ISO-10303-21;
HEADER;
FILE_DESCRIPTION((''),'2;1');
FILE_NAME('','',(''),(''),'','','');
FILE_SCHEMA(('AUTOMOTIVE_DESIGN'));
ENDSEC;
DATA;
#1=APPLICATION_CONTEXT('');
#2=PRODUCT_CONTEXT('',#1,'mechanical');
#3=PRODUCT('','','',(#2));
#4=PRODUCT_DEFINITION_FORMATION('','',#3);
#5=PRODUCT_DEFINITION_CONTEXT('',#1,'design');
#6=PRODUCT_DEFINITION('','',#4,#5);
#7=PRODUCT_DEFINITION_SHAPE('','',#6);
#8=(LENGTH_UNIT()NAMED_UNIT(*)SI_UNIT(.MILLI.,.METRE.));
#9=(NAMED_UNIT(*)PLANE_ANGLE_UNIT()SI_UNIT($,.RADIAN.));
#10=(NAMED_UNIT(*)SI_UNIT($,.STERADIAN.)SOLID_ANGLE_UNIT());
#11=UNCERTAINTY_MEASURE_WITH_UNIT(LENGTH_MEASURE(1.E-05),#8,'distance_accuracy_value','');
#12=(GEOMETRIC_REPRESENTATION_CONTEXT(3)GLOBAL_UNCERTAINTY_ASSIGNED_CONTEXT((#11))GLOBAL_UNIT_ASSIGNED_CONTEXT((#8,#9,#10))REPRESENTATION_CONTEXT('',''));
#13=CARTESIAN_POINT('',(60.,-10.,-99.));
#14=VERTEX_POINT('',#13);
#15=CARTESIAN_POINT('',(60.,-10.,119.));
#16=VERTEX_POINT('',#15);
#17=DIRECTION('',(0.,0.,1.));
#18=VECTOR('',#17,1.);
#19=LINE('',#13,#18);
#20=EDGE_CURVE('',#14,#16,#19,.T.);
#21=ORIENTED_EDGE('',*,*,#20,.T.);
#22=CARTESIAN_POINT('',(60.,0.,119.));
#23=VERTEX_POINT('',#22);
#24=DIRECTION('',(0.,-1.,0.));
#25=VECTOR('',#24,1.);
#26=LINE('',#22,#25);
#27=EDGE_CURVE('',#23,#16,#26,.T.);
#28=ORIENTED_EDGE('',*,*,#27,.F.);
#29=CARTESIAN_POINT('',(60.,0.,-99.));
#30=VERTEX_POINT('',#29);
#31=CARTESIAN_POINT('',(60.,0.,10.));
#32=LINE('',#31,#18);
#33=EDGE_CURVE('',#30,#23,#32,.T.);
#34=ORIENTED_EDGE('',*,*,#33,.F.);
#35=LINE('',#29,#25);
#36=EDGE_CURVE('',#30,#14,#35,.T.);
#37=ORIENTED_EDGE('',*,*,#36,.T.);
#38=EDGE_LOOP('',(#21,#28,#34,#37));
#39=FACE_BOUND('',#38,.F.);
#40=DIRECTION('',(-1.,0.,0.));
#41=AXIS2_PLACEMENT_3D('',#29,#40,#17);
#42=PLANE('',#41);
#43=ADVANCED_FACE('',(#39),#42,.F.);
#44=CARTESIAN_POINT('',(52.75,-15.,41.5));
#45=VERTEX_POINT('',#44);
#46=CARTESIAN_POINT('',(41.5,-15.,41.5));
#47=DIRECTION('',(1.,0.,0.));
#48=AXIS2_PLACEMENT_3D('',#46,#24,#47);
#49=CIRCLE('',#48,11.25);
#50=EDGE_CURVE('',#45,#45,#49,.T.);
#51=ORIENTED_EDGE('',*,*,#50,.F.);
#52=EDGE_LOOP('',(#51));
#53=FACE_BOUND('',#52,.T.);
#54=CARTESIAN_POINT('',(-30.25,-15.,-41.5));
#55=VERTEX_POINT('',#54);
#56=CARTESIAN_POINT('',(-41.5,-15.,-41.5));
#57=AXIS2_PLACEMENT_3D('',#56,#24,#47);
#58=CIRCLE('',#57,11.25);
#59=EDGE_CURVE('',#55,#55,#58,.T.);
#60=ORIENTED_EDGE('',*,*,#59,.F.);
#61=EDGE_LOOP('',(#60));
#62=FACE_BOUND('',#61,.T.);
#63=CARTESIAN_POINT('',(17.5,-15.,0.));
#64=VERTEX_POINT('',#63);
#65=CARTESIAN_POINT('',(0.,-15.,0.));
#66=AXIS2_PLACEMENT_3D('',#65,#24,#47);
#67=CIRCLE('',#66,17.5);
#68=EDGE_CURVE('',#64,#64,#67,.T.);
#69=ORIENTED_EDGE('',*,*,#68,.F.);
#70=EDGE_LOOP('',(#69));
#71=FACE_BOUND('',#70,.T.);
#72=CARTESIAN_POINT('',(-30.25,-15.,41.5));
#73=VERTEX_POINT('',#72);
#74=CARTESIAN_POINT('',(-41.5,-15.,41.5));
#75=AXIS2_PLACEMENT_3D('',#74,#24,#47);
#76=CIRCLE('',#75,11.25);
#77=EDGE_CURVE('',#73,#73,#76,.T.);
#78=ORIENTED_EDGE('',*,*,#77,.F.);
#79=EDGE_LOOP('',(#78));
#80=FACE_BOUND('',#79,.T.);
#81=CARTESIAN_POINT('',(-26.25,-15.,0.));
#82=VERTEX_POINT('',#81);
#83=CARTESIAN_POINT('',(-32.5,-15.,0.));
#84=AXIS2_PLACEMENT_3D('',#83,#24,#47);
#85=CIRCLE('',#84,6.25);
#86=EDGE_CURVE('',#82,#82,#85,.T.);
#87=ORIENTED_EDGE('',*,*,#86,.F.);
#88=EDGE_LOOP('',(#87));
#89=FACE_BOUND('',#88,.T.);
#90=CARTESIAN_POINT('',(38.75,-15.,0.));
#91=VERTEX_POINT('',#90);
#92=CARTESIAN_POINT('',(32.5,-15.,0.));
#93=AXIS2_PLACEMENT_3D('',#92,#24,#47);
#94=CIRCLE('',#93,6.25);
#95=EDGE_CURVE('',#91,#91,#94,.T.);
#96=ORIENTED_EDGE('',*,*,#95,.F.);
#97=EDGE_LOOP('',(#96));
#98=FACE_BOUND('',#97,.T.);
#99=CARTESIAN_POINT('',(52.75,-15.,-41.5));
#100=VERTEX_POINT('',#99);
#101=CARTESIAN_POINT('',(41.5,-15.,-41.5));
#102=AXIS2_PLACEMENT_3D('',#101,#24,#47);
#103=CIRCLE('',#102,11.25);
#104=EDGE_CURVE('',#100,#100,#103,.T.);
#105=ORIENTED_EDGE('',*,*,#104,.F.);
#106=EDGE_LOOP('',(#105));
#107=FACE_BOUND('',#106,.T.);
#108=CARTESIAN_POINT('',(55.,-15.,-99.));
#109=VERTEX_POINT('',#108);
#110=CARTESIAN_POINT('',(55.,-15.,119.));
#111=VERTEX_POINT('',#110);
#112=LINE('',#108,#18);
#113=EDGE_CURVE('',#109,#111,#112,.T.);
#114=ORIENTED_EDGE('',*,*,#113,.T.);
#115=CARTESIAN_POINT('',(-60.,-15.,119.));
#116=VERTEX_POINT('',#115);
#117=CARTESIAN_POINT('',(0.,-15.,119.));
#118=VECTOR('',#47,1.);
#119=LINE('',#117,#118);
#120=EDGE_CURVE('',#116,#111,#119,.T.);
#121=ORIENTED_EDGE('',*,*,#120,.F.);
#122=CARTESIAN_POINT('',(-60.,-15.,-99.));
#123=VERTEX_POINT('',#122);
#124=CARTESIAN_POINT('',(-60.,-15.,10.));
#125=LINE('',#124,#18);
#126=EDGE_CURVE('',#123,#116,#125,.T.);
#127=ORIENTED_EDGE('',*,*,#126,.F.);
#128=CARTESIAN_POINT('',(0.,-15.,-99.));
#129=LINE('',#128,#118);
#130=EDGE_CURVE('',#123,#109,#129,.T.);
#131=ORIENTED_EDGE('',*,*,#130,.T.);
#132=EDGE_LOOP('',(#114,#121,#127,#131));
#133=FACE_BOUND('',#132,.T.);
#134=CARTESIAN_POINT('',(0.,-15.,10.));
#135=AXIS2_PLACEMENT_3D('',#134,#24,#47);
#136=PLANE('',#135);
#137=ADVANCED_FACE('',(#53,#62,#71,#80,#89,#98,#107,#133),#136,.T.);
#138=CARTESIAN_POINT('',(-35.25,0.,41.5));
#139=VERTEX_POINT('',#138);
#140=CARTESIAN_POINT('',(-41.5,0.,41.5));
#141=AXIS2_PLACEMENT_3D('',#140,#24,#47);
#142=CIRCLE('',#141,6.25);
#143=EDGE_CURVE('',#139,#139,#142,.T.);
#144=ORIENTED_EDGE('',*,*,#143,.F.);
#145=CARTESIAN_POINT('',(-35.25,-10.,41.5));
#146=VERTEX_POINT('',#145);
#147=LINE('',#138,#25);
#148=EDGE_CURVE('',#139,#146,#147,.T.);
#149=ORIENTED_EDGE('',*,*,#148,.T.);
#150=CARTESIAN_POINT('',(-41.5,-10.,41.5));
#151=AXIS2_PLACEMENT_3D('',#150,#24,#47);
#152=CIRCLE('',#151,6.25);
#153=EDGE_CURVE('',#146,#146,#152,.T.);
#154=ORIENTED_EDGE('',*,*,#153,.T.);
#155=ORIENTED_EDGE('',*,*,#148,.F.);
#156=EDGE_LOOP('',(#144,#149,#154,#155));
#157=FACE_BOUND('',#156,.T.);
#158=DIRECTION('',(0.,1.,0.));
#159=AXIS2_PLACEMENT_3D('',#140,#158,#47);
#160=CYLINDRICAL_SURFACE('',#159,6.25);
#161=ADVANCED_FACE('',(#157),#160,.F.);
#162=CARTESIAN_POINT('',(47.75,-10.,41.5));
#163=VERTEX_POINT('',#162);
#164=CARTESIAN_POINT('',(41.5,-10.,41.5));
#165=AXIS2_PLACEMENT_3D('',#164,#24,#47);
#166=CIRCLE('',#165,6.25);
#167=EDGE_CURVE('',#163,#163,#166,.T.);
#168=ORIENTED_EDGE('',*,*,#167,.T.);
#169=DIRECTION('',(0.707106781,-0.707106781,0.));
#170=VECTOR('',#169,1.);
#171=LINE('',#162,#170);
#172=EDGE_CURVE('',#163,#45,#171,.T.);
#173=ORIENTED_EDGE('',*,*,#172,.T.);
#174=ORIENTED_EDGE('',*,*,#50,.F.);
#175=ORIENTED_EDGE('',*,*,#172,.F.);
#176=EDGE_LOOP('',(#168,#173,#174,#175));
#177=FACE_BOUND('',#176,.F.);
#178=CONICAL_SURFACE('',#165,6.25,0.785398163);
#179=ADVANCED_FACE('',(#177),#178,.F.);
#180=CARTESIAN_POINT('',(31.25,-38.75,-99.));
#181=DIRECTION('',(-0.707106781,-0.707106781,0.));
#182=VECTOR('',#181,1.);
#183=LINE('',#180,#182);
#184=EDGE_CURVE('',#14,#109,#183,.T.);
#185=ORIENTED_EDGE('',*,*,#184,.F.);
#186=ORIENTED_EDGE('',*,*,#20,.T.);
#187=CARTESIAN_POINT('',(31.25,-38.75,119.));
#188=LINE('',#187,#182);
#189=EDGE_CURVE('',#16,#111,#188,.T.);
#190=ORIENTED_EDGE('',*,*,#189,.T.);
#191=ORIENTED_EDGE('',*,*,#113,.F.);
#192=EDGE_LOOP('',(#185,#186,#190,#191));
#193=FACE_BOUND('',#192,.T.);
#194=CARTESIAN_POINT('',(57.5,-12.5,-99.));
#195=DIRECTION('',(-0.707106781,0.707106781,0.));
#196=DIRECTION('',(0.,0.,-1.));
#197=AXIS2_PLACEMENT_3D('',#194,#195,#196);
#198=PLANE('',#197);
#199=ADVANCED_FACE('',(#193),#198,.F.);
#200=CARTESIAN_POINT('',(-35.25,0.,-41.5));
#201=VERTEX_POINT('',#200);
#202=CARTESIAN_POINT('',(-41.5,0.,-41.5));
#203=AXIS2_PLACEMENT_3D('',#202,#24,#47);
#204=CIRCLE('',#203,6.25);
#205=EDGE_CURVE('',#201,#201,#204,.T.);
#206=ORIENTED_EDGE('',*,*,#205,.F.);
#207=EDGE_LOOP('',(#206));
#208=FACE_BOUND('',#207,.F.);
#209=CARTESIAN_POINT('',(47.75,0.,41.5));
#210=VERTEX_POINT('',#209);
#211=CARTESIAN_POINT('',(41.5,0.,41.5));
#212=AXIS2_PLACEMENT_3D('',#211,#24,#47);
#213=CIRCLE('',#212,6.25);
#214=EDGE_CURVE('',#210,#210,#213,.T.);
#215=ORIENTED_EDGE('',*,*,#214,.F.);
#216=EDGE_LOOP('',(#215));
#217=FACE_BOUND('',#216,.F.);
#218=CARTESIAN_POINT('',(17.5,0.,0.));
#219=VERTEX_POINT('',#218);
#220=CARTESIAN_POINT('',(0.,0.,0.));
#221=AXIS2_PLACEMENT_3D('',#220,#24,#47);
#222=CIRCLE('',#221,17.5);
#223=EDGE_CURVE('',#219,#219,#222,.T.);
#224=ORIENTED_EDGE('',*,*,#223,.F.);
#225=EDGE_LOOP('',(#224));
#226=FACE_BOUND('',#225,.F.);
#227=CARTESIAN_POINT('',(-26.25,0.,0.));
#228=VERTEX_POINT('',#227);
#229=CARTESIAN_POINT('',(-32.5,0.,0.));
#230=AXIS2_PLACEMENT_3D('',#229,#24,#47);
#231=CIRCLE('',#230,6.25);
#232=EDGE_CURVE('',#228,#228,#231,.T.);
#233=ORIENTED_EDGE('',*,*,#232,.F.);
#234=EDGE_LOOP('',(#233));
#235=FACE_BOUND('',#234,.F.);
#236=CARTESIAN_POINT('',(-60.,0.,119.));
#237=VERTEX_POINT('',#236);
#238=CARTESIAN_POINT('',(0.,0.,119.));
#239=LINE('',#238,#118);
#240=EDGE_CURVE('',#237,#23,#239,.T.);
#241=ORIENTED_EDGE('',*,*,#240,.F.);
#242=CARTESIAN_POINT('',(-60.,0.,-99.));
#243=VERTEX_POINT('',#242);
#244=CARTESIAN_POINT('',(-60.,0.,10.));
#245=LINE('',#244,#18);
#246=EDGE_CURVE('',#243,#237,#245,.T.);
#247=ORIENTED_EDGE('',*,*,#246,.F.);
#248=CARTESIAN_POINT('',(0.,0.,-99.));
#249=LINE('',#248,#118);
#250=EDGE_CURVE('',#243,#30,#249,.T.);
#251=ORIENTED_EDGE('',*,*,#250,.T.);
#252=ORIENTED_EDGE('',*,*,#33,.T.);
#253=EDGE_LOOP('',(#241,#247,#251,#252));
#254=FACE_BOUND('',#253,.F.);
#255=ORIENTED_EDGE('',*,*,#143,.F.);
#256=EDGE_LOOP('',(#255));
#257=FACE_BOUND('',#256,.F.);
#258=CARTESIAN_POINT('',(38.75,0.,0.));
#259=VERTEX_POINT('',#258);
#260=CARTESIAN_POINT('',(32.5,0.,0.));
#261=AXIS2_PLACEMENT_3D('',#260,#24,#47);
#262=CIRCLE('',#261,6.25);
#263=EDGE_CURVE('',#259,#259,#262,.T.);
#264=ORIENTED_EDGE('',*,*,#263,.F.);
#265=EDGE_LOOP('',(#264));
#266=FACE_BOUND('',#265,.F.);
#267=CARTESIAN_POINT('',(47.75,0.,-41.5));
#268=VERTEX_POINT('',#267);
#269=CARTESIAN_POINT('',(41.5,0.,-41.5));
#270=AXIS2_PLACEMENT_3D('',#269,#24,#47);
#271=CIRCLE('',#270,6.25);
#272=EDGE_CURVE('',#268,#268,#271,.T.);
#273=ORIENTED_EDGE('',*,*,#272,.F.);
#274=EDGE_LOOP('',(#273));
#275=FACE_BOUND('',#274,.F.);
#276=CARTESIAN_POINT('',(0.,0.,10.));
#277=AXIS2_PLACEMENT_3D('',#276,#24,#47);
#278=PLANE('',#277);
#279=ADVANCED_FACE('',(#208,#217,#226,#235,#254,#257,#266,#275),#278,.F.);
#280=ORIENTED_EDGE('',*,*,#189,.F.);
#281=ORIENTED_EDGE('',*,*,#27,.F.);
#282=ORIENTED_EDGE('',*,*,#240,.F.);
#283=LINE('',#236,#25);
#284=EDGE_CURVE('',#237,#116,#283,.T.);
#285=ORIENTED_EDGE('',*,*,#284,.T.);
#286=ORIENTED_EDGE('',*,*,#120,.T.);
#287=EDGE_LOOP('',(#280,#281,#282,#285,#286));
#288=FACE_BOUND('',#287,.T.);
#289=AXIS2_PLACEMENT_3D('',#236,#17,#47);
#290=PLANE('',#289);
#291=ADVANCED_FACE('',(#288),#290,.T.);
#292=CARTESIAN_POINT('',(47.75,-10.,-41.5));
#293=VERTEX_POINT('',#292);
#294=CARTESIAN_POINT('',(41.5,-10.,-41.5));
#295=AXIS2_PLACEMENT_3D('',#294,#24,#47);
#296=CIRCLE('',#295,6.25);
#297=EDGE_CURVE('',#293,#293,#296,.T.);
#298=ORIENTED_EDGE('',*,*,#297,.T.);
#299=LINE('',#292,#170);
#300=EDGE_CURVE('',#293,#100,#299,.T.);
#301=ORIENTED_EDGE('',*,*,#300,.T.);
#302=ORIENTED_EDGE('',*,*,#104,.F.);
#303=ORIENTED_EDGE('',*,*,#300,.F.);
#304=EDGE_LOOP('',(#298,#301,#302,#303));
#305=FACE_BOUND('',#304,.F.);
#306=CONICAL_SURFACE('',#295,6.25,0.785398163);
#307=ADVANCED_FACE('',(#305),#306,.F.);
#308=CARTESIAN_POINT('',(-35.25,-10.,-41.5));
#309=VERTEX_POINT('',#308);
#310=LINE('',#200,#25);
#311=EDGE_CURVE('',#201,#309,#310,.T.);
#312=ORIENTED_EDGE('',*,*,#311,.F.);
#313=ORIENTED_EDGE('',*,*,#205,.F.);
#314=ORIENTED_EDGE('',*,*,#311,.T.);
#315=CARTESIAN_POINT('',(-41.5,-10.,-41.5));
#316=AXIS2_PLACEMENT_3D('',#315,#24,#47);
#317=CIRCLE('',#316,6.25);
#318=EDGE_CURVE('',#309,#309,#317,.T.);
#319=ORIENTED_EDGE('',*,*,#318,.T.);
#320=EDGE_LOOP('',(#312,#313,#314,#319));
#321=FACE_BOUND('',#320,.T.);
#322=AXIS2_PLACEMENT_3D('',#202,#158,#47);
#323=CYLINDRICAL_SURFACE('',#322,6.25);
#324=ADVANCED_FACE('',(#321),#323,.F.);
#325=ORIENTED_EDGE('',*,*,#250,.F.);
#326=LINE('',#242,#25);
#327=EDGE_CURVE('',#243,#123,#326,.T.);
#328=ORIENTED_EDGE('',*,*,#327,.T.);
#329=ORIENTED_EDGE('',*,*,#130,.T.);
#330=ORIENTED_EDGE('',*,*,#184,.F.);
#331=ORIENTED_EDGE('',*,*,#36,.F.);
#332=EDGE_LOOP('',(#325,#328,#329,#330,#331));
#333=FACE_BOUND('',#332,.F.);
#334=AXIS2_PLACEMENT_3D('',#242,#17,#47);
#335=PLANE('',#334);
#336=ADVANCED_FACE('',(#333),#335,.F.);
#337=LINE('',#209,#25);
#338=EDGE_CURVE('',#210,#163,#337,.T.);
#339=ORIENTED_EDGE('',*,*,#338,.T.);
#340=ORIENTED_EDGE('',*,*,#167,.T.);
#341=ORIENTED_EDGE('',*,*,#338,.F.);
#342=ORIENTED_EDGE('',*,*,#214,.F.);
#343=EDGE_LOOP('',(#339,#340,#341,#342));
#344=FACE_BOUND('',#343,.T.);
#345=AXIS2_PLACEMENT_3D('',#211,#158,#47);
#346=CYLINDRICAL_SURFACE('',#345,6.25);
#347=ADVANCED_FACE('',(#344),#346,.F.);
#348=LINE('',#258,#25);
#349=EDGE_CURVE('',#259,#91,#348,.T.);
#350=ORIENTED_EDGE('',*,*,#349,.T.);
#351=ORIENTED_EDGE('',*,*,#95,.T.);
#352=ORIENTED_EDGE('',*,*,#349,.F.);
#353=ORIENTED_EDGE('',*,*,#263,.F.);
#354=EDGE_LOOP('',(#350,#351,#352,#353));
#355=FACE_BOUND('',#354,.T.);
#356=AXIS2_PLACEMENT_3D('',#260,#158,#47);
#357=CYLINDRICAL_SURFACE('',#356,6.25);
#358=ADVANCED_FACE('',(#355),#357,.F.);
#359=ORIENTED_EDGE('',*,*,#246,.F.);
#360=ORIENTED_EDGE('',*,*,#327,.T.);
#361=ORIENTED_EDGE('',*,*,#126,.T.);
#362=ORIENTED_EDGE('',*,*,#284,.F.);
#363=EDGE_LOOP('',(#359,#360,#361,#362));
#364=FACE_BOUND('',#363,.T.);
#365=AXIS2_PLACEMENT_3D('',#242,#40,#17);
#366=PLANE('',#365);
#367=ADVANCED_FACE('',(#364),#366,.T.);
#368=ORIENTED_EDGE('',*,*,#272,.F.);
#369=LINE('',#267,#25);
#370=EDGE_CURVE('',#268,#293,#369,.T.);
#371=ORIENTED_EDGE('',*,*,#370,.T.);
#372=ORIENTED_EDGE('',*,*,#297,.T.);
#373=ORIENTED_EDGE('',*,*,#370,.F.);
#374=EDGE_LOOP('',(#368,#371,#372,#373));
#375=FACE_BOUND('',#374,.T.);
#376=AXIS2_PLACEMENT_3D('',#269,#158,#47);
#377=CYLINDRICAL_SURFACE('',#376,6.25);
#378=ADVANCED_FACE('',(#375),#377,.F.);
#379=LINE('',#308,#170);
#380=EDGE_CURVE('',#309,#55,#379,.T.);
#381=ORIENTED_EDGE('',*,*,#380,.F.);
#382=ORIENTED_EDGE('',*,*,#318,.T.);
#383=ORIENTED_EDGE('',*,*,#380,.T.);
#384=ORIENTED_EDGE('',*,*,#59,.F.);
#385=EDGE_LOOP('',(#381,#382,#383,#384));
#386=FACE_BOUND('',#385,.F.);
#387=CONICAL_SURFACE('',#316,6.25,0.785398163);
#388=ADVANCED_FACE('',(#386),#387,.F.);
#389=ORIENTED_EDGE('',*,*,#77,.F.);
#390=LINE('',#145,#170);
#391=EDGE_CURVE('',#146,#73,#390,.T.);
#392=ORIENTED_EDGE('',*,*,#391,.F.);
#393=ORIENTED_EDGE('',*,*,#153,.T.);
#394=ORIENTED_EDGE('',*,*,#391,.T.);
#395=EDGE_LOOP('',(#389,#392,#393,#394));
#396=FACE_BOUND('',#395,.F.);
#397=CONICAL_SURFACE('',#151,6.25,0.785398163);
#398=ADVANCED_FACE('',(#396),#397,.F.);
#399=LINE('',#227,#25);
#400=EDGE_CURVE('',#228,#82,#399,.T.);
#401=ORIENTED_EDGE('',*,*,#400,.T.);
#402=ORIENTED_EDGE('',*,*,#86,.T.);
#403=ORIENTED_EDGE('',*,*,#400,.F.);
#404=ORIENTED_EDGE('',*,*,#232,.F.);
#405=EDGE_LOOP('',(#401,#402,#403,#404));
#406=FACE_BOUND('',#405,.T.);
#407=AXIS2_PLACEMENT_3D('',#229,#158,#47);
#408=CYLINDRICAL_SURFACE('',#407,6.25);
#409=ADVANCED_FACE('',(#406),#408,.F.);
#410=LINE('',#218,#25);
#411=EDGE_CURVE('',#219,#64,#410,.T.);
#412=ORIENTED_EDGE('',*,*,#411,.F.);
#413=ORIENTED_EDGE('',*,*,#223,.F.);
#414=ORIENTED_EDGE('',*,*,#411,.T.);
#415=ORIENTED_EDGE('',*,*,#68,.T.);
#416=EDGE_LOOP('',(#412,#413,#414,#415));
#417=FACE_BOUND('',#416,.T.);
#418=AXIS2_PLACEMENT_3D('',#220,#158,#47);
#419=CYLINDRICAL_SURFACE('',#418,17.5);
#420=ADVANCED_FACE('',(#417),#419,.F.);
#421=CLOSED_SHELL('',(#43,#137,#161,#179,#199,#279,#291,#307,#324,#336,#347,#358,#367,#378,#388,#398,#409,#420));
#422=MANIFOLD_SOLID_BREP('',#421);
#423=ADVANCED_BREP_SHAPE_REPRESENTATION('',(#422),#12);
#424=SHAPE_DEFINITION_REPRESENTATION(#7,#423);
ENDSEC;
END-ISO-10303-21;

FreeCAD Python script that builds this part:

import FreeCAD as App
import Part
import Sketcher

V = App.Vector
Q = App.Units.Quantity


def edges_at(feature, points):
    """Names of the edges that pass closest to the given points."""
    edges = feature.Shape.Edges
    near = lambda p: min(range(len(edges)), key=lambda i: edges[i].distToShape(Part.Vertex(*p))[0])
    return sorted({f"Edge{near(p) + 1}" for p in points})

doc = App.newDocument("Part")
body = doc.addObject("PartDesign::Body", "Body")

# Sketch on XZ plane
sketch1 = body.newObject("Sketcher::SketchObject", "Sketch")
sketch1.AttachmentSupport = (doc.getObject("XZ_Plane"), [""])
sketch1.MapMode = "FlatFace"
sketch1.addGeometry([
    Part.LineSegment(V(-60, 119, 0), V(-60, -99, 0)),  # 0
    Part.LineSegment(V(-60, -99, 0), V(60, -99, 0)),  # 1
    Part.LineSegment(V(60, -99, 0), V(60, 119, 0)),  # 2
    Part.LineSegment(V(60, 119, 0), V(-60, 119, 0)),  # 3
    Part.Circle(V(-42, -42, 0), V(0, 0, 1), 6),  # 4
    Part.Circle(V(42, -42, 0), V(0, 0, 1), 6),  # 5
    Part.Circle(V(-32, 0, 0), V(0, 0, 1), 6),  # 6
    Part.Circle(V(-42, 42, 0), V(0, 0, 1), 6),  # 7
    Part.Circle(V(0, 0, 0), V(0, 0, 1), 18),  # 8
    Part.Circle(V(32, 0, 0), V(0, 0, 1), 6),  # 9
    Part.Circle(V(42, 42, 0), V(0, 0, 1), 6),  # 10
], False)
sketch1.addConstraint([
    Sketcher.Constraint("Coincident", 0, 2, 1, 1),
    Sketcher.Constraint("Coincident", 1, 2, 2, 1),
    Sketcher.Constraint("Coincident", 2, 2, 3, 1),
    Sketcher.Constraint("Coincident", 3, 2, 0, 1),
    Sketcher.Constraint("Vertical", 0),
    Sketcher.Constraint("Horizontal", 1),
    Sketcher.Constraint("Vertical", 2),
    Sketcher.Constraint("Horizontal", 3),
    Sketcher.Constraint("Coincident", 8, 3, -1, 1),
    Sketcher.Constraint("Equal", 4, 5),
    Sketcher.Constraint("Equal", 5, 6),
    Sketcher.Constraint("Equal", 6, 7),
    Sketcher.Constraint("Equal", 7, 9),
    Sketcher.Constraint("Equal", 9, 10),
    Sketcher.Constraint("Symmetric", 5, 3, 7, 3, -1, 1),
    Sketcher.Constraint("Symmetric", 6, 3, 9, 3, -1, 1),
    Sketcher.Constraint("Symmetric", 4, 3, 10, 3, -1, 1),
    Sketcher.Constraint("Symmetric", 4, 3, 5, 3, -2),
    Sketcher.Constraint("PointOnObject", 6, 3, -1),
    Sketcher.Constraint("Diameter", 8, Q("35 mm")),
    Sketcher.Constraint("Diameter", 4, Q("12.5 mm")),
    Sketcher.Constraint("DistanceX", 1, 1, 1, 2, Q("120 mm")),
    Sketcher.Constraint("DistanceY", 0, 2, 0, 1, Q("218 mm")),
    Sketcher.Constraint("DistanceX", 0, 2, -1, 1, Q("60 mm")),
    Sketcher.Constraint("DistanceY", 0, 2, -1, 1, Q("99 mm")),
    Sketcher.Constraint("DistanceX", 4, 3, 5, 3, Q("83 mm")),
    Sketcher.Constraint("DistanceX", 4, 3, 6, 3, Q("9 mm")),
    Sketcher.Constraint("DistanceY", 4, 3, 7, 3, Q("83 mm")),
])
pad1 = body.newObject("PartDesign::Pad", "Pad")
pad1.Profile = sketch1
pad1.Length = 15
doc.recompute()

chamfer = body.newObject("PartDesign::Chamfer", "Chamfer")
chamfer.Base = (pad1, edges_at(pad1, [
    (-47.75, -15, 41.5),
    (35.25, -15, 41.5),
    (-47.75, -15, -41.5),
    (35.25, -15, -41.5),
    (60, -15, 10),
]))
chamfer.ChamferType = "Two distances"
chamfer.Size = 5
chamfer.Size2 = 5

doc.recompute()
